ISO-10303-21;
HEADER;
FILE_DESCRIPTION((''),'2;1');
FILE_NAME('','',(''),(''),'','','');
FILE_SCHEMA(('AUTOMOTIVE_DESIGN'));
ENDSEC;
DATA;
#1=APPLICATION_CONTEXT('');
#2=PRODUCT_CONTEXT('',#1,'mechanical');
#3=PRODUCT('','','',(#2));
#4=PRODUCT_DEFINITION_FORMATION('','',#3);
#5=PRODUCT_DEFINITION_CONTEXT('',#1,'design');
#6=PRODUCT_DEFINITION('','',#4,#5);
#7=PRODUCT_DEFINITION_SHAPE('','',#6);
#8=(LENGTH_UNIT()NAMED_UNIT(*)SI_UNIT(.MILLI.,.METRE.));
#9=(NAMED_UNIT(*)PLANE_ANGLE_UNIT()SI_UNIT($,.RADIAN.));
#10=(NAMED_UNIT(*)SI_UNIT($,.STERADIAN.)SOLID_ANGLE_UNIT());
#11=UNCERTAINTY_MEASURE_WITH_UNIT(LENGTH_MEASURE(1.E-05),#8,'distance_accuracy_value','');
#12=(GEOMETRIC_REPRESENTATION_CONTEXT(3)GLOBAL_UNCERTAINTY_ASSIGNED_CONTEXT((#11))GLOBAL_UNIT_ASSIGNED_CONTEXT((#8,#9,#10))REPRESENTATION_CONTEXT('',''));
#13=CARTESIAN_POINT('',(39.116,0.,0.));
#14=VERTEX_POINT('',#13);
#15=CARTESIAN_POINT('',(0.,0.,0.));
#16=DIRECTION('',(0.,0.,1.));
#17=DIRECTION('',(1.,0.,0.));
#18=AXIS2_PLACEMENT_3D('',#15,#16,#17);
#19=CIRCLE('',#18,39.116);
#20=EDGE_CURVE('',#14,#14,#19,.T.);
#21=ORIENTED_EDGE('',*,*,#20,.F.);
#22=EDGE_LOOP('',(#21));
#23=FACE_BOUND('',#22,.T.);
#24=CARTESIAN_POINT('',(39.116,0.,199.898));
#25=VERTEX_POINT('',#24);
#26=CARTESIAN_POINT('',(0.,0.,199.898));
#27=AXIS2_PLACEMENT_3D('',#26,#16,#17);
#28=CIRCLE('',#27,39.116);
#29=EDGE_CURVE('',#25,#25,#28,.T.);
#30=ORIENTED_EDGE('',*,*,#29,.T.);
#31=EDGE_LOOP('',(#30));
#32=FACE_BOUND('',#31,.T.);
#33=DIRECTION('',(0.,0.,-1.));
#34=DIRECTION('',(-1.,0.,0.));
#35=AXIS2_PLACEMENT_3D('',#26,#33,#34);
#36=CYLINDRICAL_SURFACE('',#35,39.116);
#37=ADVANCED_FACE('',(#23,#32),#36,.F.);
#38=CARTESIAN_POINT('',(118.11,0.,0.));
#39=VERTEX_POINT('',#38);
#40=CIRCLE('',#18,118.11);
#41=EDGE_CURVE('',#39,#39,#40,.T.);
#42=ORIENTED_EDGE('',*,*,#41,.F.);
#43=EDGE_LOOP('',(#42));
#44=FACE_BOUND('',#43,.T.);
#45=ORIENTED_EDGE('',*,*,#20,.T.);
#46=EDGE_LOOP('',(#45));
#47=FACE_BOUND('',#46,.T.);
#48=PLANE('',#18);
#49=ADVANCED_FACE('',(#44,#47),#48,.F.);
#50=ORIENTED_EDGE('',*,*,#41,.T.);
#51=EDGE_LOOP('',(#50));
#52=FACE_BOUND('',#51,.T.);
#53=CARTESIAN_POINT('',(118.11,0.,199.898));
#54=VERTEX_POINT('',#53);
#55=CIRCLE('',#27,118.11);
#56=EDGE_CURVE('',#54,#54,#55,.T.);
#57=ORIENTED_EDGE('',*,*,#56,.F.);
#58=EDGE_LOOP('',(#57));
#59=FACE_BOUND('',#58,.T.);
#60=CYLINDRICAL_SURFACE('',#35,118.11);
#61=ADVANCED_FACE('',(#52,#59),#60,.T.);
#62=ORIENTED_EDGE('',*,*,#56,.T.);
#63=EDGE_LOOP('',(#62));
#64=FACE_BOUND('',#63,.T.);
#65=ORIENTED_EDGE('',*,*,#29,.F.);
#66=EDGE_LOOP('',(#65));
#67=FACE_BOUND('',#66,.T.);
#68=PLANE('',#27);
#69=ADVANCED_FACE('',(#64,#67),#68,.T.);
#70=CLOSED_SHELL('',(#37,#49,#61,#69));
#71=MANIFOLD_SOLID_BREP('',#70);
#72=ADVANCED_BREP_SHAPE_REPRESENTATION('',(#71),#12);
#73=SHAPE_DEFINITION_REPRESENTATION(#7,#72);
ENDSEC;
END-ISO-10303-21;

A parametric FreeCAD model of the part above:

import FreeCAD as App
import Part
import Sketcher
from FreeCAD import Vector
Q = App.Units.Quantity

doc = App.newDocument("Part")
body = doc.addObject("PartDesign::Body", "Body")

sketch1 = doc.addObject("Sketcher::SketchObject", "Sketch")
body.addObject(sketch1)
sketch1.AttachmentSupport = (doc.XY_Plane, [""])
sketch1.MapMode = "FlatFace"
sketch1.addGeometry(Part.Circle(Vector(0, 0, 0), Vector(0, 0, 1), 118), False)
sketch1.addGeometry(Part.Circle(Vector(0, 0, 0), Vector(0, 0, 1), 39), False)
sketch1.addConstraint(Sketcher.Constraint("Coincident", 0, 3, -1, 1))
sketch1.addConstraint(Sketcher.Constraint("Coincident", 1, 3, -1, 1))
sketch1.addConstraint(Sketcher.Constraint("Diameter", 0, Q("9.3 in")))
sketch1.addConstraint(Sketcher.Constraint("Diameter", 1, Q("3.08 in")))
pad1 = doc.addObject("PartDesign::Pad", "Pad")
body.addObject(pad1)
pad1.Profile = sketch1
pad1.Length = Q("7.87 in")

doc.recompute()
